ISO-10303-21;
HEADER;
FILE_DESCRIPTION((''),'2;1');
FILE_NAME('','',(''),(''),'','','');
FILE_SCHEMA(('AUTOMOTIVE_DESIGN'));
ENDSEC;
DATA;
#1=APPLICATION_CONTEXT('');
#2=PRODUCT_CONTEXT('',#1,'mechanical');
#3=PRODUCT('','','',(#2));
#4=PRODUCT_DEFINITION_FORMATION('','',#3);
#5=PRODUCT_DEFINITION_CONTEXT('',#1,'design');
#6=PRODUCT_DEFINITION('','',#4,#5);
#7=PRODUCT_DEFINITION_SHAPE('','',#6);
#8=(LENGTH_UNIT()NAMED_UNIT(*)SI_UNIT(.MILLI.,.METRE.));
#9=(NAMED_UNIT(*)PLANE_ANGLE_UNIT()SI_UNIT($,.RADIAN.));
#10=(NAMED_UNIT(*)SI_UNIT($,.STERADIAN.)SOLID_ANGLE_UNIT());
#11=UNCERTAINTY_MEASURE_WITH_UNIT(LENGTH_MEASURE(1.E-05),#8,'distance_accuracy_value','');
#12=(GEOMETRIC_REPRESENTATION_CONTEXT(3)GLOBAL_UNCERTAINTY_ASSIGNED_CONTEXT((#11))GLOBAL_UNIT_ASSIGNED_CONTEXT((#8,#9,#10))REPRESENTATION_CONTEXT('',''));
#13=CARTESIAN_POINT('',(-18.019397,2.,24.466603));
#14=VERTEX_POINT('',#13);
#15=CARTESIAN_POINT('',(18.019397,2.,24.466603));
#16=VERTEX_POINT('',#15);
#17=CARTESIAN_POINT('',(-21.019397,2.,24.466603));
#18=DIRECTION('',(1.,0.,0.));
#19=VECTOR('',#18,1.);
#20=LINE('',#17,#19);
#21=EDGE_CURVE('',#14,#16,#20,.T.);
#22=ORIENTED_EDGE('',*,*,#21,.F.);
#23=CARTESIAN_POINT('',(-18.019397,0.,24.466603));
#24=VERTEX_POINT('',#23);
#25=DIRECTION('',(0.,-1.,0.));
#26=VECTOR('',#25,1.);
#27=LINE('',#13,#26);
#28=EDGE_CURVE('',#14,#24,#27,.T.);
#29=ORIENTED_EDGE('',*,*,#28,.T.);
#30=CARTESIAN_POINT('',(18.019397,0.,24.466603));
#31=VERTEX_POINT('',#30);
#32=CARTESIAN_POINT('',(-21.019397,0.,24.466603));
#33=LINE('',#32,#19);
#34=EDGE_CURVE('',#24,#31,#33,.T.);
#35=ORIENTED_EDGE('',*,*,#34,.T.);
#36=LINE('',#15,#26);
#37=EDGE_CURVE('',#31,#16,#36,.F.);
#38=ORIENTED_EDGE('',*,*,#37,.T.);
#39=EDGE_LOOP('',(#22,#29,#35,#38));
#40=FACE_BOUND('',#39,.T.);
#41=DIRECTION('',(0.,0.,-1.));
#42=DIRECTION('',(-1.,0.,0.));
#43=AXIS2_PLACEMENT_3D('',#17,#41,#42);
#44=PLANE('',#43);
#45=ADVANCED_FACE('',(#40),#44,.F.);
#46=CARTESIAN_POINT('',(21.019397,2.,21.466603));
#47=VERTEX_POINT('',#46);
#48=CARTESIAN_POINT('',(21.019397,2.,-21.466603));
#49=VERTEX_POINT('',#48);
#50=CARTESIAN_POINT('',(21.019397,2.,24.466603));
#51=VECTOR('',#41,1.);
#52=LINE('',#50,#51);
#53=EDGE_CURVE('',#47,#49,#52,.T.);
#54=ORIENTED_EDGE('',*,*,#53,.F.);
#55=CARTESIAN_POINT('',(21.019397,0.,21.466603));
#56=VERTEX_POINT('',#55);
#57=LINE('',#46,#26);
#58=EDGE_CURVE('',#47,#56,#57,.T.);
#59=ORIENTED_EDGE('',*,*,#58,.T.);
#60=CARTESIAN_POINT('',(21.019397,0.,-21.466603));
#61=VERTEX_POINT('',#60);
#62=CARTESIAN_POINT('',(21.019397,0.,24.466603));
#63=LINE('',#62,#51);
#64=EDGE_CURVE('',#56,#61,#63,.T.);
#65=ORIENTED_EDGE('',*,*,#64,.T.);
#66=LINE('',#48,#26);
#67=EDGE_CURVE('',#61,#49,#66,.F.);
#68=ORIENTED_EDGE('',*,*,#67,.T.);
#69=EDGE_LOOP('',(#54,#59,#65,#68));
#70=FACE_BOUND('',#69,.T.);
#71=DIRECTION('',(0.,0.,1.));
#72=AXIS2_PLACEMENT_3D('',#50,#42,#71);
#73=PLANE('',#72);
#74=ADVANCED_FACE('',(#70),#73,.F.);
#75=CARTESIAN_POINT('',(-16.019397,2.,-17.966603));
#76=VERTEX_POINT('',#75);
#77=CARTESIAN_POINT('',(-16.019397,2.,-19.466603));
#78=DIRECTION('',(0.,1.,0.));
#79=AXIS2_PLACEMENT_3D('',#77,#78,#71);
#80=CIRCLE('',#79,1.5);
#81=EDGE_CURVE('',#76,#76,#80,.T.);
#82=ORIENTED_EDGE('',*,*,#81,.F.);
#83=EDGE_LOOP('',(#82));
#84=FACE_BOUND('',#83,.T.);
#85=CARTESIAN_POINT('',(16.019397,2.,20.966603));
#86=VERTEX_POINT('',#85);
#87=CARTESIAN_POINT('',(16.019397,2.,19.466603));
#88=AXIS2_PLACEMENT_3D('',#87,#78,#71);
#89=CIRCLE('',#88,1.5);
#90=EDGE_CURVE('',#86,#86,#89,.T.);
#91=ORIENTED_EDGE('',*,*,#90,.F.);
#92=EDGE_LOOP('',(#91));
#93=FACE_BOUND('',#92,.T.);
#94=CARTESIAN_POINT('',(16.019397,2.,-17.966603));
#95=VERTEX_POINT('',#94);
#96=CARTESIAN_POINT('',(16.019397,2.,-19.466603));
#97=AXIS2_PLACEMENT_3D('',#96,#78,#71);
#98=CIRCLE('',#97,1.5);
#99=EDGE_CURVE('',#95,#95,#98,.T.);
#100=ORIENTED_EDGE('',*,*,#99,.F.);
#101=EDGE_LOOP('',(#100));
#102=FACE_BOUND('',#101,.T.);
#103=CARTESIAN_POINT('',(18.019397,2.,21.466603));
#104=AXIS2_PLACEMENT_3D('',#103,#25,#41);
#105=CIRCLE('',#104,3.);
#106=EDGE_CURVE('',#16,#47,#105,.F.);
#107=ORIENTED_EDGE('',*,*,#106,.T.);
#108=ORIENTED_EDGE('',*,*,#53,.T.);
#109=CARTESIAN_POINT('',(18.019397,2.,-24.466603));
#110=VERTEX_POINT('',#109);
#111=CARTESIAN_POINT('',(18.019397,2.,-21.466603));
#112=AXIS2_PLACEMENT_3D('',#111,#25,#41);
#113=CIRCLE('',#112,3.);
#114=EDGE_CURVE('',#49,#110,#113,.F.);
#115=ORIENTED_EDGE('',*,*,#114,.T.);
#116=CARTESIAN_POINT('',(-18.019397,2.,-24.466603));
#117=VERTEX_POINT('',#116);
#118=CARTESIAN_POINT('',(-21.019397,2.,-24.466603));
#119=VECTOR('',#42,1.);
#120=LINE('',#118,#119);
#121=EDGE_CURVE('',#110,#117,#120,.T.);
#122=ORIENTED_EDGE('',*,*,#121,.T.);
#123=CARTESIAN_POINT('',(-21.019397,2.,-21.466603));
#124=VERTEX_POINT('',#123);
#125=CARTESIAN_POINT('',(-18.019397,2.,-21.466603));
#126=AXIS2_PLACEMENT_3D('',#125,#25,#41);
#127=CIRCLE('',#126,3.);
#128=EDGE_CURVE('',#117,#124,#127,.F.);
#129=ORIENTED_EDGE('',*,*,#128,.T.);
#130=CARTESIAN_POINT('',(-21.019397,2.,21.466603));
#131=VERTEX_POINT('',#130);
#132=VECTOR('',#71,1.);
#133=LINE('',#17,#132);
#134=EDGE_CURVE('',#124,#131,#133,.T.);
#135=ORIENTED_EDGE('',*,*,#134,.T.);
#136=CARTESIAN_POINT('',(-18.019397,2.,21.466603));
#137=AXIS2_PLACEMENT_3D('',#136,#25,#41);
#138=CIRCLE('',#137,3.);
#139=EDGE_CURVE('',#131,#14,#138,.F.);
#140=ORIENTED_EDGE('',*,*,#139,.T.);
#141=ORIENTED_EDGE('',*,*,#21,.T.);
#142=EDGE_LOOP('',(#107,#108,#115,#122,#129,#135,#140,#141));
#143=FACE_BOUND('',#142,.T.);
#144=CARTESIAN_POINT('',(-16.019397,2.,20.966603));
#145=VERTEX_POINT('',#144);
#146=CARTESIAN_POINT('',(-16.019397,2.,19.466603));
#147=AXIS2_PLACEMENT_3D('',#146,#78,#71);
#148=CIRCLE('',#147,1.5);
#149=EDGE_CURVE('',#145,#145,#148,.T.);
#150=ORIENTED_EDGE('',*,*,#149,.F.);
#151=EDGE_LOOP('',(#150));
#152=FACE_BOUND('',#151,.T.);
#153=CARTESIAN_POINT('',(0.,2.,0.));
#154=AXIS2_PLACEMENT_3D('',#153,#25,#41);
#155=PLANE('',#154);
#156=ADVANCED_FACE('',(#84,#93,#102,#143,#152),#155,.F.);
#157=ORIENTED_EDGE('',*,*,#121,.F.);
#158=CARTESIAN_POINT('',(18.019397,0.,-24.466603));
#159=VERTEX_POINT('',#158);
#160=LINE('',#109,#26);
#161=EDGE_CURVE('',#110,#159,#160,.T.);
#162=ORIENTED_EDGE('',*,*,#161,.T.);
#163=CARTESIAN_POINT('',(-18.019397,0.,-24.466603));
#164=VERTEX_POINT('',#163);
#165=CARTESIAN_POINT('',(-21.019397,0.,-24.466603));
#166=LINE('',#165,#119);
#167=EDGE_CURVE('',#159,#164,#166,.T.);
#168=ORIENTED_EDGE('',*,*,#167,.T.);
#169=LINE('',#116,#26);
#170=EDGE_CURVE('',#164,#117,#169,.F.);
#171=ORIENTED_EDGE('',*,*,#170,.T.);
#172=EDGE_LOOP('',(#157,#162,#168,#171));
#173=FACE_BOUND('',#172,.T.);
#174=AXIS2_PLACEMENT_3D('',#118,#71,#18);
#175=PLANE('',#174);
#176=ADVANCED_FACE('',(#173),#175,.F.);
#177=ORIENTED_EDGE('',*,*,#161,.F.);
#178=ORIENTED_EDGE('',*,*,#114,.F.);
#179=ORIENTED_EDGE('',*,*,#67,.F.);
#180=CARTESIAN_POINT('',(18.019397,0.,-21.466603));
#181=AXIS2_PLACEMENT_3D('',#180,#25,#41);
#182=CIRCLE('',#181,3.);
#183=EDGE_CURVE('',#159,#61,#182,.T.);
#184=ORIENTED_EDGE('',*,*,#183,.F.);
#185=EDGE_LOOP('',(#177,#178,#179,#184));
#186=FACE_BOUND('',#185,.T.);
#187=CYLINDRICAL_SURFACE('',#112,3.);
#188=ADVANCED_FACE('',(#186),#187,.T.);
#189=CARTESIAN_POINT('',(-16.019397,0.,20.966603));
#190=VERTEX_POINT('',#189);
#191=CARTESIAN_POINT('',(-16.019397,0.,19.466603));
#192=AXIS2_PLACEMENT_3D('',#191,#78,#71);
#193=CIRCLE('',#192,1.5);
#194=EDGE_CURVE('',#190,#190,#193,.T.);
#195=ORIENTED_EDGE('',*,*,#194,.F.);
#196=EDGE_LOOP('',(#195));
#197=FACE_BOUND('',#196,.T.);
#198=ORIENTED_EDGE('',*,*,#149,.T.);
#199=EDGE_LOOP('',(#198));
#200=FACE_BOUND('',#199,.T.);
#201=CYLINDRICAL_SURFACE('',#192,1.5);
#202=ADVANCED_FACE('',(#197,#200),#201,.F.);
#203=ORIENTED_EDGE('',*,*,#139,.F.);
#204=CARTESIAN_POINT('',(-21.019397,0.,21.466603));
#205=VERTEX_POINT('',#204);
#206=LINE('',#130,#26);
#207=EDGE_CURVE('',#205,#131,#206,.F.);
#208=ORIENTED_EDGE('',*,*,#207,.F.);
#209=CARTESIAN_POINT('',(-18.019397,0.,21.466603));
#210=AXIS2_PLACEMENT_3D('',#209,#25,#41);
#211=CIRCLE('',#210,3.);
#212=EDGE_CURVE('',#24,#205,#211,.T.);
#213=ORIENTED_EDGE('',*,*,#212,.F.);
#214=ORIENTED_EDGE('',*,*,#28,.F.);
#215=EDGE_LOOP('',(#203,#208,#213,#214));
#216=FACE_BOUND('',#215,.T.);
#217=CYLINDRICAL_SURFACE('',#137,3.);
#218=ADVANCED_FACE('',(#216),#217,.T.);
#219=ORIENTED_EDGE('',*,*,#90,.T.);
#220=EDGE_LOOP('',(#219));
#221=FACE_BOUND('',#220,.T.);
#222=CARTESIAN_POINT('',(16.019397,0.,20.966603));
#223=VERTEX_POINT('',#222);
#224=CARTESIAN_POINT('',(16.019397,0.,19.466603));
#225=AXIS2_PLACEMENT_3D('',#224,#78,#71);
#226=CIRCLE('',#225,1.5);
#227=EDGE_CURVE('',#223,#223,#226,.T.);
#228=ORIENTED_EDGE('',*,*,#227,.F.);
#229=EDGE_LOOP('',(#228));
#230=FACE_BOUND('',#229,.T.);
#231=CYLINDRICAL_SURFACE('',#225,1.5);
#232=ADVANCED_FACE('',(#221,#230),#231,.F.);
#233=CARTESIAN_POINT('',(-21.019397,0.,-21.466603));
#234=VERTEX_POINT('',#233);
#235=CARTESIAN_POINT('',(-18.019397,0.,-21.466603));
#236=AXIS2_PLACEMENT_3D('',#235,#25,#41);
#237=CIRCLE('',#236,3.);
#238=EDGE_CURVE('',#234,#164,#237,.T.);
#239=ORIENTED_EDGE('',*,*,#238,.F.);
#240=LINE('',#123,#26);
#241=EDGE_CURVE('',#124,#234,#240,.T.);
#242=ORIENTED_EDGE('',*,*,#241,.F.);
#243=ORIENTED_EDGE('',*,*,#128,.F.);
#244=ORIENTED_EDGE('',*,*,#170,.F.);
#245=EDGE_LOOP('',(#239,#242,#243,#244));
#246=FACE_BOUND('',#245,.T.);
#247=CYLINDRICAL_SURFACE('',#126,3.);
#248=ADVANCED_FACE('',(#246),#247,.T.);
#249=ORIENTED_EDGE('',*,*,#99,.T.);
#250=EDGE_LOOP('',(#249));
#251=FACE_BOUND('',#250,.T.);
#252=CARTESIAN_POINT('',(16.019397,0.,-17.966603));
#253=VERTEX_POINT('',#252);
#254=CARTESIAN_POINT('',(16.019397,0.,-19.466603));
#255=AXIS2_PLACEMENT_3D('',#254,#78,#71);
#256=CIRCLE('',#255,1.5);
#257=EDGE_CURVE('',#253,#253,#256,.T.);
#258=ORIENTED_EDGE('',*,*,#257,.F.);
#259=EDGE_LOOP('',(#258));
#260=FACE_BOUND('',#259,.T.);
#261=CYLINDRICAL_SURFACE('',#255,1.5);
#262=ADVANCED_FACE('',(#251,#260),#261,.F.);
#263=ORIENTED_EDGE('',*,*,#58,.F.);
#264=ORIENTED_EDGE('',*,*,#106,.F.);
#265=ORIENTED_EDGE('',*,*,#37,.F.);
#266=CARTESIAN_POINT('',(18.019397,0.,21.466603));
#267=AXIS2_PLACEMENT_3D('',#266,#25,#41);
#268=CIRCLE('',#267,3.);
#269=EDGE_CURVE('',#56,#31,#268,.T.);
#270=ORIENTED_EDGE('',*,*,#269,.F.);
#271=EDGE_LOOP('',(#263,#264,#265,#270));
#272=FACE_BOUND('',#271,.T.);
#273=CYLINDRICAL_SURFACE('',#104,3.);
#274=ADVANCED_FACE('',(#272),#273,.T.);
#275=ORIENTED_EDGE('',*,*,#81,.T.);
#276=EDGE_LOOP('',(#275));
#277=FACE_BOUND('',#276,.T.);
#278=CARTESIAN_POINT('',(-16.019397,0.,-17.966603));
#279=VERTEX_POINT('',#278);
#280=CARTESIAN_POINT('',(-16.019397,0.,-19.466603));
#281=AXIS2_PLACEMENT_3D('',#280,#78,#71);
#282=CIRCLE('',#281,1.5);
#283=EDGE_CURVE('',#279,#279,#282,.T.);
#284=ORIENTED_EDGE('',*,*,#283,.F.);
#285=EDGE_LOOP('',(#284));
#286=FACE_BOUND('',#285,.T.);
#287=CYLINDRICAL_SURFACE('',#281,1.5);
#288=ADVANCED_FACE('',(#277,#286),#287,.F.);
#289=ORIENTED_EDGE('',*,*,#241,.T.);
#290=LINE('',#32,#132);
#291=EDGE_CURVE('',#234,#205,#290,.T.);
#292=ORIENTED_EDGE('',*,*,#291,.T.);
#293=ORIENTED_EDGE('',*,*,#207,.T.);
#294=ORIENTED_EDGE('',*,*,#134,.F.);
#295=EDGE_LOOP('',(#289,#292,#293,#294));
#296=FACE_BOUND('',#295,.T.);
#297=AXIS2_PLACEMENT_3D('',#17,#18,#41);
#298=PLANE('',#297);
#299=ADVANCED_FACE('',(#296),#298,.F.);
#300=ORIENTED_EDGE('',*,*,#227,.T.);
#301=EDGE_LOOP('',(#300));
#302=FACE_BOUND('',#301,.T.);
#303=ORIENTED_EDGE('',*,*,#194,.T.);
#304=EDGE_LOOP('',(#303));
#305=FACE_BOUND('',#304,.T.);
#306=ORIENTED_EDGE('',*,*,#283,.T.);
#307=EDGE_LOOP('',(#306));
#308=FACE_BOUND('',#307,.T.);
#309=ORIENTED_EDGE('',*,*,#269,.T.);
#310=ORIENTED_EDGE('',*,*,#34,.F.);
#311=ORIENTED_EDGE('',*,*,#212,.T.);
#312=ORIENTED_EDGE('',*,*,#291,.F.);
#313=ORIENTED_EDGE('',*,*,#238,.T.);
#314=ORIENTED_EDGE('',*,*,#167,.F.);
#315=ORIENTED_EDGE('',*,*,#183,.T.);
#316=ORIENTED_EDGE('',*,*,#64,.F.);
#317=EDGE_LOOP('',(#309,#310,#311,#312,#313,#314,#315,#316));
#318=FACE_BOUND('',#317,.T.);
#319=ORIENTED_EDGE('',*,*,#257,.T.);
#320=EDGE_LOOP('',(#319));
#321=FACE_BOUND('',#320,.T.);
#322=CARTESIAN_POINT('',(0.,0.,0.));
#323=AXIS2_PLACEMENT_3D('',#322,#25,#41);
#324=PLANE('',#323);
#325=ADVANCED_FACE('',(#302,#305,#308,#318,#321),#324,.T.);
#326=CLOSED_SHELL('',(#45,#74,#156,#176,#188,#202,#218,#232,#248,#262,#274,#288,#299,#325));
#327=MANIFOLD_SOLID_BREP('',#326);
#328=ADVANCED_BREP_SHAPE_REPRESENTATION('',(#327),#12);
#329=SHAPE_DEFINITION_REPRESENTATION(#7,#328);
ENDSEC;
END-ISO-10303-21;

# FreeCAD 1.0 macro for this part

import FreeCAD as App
import Part
import Sketcher
Q = App.Units.Quantity


def edges_at(feature, points):
    """Names of the edges that pass closest to the given points."""
    edges = feature.Shape.Edges
    near = lambda p: min(range(len(edges)), key=lambda i: edges[i].distToShape(Part.Vertex(*p))[0])
    return sorted({f"Edge{near(p) + 1}" for p in points})


def add_polygon(sketch, points):
    """Adds a closed chain of lines whose ends are joined by coincident constraints."""
    first, n = sketch.GeometryCount, len(points)
    for a, b in zip(points, points[1:] + points[:1]):
        sketch.addGeometry(Part.LineSegment(App.Vector(*a, 0), App.Vector(*b, 0)), False)
    for i in range(n):
        sketch.addConstraint(Sketcher.Constraint("Coincident", first + i, 2, first + (i + 1) % n, 1))

doc = App.newDocument("Part")
params = doc.addObject("Spreadsheet::Sheet", "Params")
for row, (alias, value) in enumerate([
    ("pad1_length", "2 mm"),
    ("sketch2_diameter", "3 mm"),
    ("fillet_radius", "3 mm"),
], start=1):
    params.set(f"A{row}", alias)
    params.set(f"B{row}", "=" + value)
    params.setAlias(f"B{row}", alias)

body = doc.addObject("PartDesign::Body", "Body")

# Sketch on XZ plane
sketch1 = body.newObject("Sketcher::SketchObject", "Sketch")
sketch1.AttachmentSupport = (doc.getObject("XZ_Plane"), [""])
sketch1.MapMode = "FlatFace"
add_polygon(sketch1, [(-21, -24), (-21, 24), (21, 24), (21, -24)])  # lines 0-3
sketch1.addConstraint([
    Sketcher.Constraint("Vertical", 0),
    Sketcher.Constraint("Horizontal", 1),
    Sketcher.Constraint("Vertical", 2),
    Sketcher.Constraint("Horizontal", 3),
    Sketcher.Constraint("Symmetric", 0, 2, 2, 2, -1, 1),
    Sketcher.Constraint("DistanceX", 1, 1, 1, 2, Q("42.038794 mm")),
    Sketcher.Constraint("DistanceY", 0, 1, 0, 2, Q("48.933205 mm")),
])
pad1 = body.newObject("PartDesign::Pad", "Pad")
pad1.Profile = sketch1
pad1.setExpression("Length", "Params.pad1_length")
pad1.Reversed = True

# Sketch on XZ plane
sketch2 = body.newObject("Sketcher::SketchObject", "Sketch001")
sketch2.AttachmentSupport = (doc.getObject("XZ_Plane"), [""])
sketch2.MapMode = "FlatFace"
sketch2.AttachmentOffset = App.Placement(App.Vector(0, 0, -2), App.Rotation())
sketch2.addGeometry([
    Part.Circle(App.Vector(-16, -19.5, 0), App.Vector(0, 0, 1), 1.5),
    Part.Circle(App.Vector(16, -19.5, 0), App.Vector(0, 0, 1), 1.5),
    Part.Circle(App.Vector(16, 19.5, 0), App.Vector(0, 0, 1), 1.5),
    Part.Circle(App.Vector(-16, 19.5, 0), App.Vector(0, 0, 1), 1.5),
], False)
sketch2.addConstraint([
    Sketcher.Constraint("Equal", 0, 1),
    Sketcher.Constraint("Equal", 1, 2),
    Sketcher.Constraint("Equal", 2, 3),
    Sketcher.Constraint("Symmetric", 0, 3, 2, 3, -1, 1),
    Sketcher.Constraint("Symmetric", 1, 3, 3, 3, -1, 1),
    Sketcher.Constraint("Symmetric", 0, 3, 1, 3, -2),
    Sketcher.Constraint("Diameter", 0, Q("3 mm")),
    Sketcher.Constraint("DistanceX", 0, 3, -1, 1, Q("16.019397 mm")),
    Sketcher.Constraint("DistanceY", 0, 3, -1, 1, Q("19.466603 mm")),
])
sketch2.setExpression("Constraints[6]", "Params.sketch2_diameter")
pocket1 = body.newObject("PartDesign::Pocket", "Pocket")
pocket1.Profile = sketch2
pocket1.Type = "ThroughAll"
pocket1.Reversed = True
doc.recompute()

fillet = body.newObject("PartDesign::Fillet", "Fillet")
fillet.Base = (pocket1, edges_at(pocket1, [
    (21.019, 1, 24.467),
    (-21.019, 1, 24.467),
    (-21.019, 1, -24.467),
    (21.019, 1, -24.467),
]))
fillet.setExpression("Radius", "Params.fillet_radius")

doc.recompute()
